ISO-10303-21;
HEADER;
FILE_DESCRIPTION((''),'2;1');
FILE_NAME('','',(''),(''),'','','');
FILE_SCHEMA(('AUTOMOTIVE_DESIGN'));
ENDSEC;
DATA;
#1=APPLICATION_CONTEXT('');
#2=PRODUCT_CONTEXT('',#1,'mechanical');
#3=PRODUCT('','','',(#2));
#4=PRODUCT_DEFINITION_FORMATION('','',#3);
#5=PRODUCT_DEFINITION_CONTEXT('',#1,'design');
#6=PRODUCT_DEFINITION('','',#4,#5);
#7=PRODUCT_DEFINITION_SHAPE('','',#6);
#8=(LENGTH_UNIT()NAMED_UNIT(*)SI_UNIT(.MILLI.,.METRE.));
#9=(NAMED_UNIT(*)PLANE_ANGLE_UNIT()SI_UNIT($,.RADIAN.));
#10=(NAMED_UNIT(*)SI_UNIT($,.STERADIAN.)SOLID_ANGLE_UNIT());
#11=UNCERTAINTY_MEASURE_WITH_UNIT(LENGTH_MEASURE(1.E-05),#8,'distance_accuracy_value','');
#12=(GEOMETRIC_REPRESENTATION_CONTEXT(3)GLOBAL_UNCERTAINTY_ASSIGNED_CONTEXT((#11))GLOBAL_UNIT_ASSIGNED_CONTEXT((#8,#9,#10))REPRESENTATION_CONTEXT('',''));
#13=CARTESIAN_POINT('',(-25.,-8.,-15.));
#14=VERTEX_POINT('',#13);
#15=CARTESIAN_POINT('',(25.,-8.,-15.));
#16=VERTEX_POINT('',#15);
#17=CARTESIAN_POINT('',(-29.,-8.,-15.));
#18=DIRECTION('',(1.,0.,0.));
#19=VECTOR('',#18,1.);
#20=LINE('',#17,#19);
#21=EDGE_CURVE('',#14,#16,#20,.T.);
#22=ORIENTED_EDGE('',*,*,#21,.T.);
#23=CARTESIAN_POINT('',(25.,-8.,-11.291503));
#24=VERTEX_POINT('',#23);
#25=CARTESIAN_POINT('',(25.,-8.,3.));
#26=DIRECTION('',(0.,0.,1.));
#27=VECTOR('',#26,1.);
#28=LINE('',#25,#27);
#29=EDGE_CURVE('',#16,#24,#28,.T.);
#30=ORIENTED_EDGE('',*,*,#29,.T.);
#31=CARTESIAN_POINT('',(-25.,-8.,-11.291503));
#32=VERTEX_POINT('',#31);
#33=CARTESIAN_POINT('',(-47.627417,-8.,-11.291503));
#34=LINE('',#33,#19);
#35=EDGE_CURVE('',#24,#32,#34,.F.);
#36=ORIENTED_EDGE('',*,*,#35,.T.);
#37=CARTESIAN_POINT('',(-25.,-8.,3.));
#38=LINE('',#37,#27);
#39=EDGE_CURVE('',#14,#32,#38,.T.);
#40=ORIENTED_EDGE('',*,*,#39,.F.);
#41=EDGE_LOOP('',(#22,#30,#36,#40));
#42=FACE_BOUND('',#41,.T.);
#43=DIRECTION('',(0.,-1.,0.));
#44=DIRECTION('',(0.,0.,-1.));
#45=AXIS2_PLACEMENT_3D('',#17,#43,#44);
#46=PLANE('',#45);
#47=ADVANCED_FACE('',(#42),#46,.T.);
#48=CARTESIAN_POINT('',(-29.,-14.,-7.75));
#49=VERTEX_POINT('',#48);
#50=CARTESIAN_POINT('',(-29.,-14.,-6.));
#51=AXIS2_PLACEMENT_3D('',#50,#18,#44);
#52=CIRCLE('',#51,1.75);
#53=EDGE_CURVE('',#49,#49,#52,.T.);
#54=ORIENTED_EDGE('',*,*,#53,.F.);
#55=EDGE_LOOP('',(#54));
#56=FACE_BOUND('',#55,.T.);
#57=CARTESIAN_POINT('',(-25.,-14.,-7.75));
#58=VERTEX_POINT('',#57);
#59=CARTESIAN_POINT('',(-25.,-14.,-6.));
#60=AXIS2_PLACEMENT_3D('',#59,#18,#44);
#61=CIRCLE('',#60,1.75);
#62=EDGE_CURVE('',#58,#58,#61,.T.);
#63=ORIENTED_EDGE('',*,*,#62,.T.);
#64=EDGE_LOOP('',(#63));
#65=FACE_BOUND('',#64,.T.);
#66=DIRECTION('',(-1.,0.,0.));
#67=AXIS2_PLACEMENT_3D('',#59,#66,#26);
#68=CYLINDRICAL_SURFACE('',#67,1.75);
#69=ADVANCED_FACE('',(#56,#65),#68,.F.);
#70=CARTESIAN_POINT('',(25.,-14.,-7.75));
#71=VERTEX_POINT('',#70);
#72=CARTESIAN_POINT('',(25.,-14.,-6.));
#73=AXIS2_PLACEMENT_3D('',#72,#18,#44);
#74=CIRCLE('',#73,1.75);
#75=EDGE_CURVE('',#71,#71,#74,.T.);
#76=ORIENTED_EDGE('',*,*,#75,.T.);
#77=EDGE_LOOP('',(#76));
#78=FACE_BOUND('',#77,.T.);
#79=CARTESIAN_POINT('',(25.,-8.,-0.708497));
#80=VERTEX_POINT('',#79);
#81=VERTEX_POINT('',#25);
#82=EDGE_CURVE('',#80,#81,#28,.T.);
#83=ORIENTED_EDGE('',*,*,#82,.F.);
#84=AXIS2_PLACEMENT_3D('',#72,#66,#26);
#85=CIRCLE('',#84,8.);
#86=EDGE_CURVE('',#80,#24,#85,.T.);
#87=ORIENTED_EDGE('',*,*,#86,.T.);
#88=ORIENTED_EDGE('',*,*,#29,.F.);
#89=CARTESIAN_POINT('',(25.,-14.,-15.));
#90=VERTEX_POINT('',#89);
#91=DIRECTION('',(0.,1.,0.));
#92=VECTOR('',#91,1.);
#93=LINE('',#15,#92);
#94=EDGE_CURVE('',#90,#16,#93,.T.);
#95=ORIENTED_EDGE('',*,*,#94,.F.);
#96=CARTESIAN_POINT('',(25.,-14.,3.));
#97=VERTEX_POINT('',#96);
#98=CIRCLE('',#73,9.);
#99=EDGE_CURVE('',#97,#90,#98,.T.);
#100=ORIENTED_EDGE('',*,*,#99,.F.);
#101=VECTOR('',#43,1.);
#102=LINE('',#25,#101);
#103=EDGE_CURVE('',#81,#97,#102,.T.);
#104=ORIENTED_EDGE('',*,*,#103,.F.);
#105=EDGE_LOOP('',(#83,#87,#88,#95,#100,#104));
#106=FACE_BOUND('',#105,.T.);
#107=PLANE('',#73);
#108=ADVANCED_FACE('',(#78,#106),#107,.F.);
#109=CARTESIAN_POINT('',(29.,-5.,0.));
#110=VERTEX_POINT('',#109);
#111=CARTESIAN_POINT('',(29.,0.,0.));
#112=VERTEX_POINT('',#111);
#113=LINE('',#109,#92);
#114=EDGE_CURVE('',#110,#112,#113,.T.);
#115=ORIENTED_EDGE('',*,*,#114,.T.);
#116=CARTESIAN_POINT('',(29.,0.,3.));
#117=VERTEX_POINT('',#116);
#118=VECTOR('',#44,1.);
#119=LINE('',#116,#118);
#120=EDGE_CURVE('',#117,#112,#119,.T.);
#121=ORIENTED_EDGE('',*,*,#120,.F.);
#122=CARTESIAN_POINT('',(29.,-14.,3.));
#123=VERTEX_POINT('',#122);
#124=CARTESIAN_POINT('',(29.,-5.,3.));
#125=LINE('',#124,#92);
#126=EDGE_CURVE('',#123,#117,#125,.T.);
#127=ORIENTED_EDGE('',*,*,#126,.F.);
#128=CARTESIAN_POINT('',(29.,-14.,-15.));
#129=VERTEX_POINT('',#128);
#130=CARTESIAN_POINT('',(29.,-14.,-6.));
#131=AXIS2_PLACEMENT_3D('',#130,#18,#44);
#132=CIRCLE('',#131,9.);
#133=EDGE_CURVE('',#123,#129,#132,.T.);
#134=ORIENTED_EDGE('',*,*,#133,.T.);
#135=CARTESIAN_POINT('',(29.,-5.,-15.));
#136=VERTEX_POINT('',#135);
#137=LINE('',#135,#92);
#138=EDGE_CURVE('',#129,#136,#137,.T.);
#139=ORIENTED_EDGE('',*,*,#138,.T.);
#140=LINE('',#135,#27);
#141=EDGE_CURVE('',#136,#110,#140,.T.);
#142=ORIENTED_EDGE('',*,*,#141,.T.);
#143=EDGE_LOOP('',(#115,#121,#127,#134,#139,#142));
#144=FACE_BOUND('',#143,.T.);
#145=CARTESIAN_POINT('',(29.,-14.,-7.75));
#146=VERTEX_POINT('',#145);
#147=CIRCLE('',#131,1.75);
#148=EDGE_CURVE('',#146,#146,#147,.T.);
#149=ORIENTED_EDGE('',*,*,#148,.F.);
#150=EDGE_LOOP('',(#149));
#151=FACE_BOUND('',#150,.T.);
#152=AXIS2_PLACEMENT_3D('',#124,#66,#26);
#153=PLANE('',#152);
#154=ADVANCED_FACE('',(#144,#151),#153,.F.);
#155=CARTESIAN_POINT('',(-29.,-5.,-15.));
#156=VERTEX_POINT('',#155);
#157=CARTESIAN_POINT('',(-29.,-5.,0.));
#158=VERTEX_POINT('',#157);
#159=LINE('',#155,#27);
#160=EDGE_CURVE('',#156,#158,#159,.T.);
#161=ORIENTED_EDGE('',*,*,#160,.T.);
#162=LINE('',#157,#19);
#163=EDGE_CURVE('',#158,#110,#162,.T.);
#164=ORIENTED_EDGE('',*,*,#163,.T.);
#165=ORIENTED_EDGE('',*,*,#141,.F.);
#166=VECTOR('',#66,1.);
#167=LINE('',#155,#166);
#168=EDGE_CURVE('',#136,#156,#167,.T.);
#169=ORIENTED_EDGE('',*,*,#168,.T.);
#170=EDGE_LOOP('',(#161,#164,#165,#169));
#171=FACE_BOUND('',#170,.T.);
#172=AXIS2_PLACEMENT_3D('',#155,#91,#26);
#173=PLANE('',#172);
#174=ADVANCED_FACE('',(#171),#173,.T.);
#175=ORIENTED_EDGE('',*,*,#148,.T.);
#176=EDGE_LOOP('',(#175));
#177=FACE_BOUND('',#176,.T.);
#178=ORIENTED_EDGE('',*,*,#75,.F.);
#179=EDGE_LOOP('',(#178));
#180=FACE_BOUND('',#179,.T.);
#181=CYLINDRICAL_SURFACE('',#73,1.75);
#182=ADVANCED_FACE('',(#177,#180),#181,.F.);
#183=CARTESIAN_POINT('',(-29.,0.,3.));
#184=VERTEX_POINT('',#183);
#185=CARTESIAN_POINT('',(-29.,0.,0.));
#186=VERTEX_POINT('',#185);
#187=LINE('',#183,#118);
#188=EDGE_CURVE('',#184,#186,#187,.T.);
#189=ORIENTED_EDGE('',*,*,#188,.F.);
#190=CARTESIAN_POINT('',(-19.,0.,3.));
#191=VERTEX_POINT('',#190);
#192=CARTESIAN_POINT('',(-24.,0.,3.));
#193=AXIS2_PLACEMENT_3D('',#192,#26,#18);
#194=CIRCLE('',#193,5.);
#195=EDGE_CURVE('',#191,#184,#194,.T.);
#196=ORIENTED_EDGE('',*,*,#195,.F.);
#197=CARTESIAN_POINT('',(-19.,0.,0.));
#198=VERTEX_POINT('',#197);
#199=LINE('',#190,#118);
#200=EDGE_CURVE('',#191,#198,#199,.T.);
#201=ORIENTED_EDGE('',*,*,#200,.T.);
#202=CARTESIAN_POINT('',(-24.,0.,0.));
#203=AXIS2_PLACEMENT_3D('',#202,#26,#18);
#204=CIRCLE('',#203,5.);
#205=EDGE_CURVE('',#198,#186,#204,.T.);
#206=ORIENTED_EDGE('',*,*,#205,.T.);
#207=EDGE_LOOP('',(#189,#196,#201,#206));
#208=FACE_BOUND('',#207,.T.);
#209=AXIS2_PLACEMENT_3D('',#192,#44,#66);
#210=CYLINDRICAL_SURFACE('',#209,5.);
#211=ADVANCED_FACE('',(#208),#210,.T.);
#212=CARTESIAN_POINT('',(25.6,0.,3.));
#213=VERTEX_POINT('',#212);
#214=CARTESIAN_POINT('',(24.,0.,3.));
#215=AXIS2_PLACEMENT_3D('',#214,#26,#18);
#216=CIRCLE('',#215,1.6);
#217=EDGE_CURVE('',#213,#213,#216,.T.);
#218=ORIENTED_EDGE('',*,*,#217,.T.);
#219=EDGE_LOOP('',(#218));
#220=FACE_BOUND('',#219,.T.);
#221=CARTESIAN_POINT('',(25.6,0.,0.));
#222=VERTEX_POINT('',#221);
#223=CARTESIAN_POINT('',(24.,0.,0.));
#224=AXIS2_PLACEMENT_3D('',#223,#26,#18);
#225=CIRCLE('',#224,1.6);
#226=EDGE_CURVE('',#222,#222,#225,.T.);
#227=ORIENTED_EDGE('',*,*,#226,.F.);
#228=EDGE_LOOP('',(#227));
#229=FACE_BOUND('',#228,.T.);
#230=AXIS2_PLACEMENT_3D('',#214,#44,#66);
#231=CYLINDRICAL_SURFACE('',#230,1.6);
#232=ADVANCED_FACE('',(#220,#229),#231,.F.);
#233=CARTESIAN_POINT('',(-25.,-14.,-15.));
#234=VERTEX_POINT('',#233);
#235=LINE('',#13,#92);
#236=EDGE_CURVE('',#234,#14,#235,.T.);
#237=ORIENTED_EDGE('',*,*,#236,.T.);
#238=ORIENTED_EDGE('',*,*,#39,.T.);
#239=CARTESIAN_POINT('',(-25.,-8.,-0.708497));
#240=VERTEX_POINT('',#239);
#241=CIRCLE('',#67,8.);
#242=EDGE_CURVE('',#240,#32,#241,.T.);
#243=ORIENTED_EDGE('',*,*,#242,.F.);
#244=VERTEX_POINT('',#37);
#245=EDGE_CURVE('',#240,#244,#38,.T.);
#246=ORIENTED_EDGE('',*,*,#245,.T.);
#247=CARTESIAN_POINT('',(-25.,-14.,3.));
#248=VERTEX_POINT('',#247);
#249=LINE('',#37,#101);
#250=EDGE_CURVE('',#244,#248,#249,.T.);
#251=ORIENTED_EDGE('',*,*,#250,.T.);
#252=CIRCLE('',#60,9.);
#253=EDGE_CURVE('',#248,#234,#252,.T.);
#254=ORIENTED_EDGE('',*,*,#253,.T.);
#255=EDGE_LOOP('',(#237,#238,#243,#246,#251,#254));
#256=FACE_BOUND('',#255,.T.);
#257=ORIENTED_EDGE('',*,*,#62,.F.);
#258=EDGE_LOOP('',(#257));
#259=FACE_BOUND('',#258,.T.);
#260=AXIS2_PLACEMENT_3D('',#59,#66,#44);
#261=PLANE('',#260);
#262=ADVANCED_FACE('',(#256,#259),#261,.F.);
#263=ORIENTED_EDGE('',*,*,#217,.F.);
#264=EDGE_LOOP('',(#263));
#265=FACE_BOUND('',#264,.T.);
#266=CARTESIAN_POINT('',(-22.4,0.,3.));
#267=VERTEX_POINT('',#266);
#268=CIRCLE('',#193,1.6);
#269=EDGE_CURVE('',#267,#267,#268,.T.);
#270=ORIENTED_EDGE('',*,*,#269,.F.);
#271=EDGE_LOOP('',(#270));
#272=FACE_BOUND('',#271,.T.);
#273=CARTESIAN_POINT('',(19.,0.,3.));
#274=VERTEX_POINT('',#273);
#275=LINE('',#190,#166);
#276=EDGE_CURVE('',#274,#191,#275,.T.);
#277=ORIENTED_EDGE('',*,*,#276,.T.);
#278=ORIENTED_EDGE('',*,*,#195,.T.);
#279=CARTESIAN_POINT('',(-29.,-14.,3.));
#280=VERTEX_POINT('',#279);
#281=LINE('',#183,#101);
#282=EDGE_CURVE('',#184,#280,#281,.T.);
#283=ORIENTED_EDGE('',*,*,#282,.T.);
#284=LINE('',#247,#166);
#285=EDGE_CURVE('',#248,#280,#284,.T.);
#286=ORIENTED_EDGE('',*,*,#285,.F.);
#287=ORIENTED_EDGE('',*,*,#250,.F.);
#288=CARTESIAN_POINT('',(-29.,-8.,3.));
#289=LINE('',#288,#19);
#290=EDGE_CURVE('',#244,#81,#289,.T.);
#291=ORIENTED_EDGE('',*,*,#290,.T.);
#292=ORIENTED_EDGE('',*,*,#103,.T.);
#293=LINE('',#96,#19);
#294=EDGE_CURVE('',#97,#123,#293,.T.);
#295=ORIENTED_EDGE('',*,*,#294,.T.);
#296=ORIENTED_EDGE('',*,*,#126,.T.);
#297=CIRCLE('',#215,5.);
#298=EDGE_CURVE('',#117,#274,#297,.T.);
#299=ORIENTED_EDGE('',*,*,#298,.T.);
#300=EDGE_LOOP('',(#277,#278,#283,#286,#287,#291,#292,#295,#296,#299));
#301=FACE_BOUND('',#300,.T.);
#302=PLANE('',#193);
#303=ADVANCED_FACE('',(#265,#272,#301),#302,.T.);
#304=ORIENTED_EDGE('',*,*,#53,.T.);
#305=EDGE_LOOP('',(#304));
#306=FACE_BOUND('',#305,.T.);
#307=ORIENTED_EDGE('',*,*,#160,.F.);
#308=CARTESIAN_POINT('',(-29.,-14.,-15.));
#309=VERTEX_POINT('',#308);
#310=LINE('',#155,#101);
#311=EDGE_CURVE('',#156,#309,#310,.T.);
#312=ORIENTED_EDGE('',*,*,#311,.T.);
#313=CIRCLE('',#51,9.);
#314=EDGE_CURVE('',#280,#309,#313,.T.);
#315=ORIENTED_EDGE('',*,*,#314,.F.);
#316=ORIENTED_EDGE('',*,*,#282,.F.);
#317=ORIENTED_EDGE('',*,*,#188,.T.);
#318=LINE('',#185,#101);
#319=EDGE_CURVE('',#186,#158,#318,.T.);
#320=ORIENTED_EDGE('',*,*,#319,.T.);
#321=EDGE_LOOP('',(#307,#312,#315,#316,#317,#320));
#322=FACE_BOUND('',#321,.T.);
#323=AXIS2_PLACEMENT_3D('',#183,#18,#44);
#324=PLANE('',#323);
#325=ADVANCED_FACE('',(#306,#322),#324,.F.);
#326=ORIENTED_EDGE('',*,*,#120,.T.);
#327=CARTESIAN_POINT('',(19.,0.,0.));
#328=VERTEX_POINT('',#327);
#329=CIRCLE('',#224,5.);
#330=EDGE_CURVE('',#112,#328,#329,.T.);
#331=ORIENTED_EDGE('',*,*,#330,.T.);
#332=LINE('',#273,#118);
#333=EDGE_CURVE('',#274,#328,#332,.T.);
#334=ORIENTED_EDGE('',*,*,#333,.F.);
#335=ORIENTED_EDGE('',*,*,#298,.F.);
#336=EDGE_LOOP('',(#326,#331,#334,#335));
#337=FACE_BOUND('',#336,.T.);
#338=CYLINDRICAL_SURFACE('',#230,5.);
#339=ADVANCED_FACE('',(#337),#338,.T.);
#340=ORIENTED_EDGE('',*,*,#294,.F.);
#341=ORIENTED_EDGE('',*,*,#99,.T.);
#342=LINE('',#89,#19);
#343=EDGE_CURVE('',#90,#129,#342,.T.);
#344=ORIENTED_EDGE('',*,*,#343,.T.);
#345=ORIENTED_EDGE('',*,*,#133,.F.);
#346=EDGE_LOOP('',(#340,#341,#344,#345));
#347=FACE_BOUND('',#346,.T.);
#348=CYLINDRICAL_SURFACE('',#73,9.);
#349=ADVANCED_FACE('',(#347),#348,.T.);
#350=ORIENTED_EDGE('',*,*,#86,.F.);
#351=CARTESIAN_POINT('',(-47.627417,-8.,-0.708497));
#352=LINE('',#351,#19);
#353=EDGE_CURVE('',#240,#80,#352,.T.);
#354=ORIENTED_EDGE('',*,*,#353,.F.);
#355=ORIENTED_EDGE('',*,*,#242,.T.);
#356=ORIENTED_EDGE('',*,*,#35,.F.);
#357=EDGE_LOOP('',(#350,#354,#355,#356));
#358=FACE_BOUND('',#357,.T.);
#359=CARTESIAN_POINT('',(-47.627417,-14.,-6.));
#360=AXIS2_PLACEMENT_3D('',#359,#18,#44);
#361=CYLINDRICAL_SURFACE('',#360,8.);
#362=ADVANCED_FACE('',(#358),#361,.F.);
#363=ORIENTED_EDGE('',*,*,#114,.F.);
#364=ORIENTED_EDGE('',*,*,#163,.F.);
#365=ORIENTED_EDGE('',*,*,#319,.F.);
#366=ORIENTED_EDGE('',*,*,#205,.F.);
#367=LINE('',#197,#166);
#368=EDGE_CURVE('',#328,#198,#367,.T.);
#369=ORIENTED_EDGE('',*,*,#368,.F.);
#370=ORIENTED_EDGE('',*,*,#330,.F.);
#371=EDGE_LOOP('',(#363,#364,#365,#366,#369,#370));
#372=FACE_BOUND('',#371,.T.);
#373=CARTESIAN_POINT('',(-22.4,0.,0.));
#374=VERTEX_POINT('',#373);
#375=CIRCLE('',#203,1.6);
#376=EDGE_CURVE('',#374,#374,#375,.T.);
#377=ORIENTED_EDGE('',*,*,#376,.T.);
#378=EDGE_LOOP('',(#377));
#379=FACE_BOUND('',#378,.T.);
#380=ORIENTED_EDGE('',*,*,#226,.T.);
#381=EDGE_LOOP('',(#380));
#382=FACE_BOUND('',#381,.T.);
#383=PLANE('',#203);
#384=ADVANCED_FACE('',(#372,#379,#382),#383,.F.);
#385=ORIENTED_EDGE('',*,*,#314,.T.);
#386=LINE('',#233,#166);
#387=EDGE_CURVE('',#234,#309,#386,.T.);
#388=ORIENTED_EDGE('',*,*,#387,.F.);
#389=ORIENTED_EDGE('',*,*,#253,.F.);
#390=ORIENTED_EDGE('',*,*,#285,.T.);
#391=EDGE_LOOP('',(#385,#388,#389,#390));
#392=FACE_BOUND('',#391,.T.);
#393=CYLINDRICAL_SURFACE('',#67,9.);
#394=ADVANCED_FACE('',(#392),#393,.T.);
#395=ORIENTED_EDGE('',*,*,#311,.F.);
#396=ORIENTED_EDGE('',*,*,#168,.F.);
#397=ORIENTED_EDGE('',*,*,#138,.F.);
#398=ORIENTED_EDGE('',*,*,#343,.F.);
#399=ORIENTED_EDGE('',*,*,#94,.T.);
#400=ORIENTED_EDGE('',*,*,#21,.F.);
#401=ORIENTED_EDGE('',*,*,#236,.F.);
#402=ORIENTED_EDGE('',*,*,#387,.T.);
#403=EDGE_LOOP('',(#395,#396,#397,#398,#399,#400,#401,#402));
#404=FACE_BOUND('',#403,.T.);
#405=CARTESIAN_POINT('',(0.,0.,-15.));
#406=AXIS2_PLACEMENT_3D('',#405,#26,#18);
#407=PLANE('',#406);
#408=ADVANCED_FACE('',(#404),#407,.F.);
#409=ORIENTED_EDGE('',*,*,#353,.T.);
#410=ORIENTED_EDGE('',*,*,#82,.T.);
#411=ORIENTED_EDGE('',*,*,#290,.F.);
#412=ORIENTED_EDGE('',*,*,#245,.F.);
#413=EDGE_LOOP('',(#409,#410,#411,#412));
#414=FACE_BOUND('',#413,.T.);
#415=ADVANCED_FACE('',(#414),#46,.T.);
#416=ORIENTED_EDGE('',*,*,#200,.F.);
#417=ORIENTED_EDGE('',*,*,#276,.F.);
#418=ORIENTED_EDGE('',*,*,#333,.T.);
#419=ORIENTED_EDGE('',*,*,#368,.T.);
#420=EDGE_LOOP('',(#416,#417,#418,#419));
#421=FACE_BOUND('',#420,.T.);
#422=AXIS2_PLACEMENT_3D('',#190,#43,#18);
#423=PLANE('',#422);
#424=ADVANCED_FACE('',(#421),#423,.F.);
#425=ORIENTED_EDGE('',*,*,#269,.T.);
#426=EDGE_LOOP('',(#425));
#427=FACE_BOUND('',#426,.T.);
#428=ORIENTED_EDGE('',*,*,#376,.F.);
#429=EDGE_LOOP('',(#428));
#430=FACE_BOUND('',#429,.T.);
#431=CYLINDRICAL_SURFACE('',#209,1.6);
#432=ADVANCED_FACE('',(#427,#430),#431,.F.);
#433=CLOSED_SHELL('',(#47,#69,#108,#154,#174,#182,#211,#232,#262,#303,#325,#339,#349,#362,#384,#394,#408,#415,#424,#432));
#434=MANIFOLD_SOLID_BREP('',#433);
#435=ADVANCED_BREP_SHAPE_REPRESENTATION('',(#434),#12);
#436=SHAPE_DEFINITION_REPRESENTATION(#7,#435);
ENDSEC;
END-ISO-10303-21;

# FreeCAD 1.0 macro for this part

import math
import FreeCAD as App
import Part
import Sketcher
from FreeCAD import Vector
Q = App.Units.Quantity


def add_polygon(sketch, points):
    """Adds a closed chain of lines whose ends are joined by coincident constraints."""
    first, n = sketch.GeometryCount, len(points)
    for a, b in zip(points, points[1:] + points[:1]):
        sketch.addGeometry(Part.LineSegment(App.Vector(*a, 0), App.Vector(*b, 0)), False)
    for i in range(n):
        sketch.addConstraint(Sketcher.Constraint("Coincident", first + i, 2, first + (i + 1) % n, 1))

doc = App.newDocument("Part")
params = doc.addObject("Spreadsheet::Sheet", "Params")
for row, (alias, value) in enumerate([
    ("sketch1_radius", "5 mm"),
    ("sketch1_diameter", "3.2 mm"),
    ("sketch1_width", "58 mm"),
    ("sketch1_height", "5 mm"),
    ("pad1_length", "3 mm"),
    ("sketch2_width", "58 mm"),
    ("sketch2_height", "3 mm"),
    ("pad2_length", "18 mm"),
    ("sketch3_radius", "9 mm"),
    ("sketch3_diameter", "3.5 mm"),
    ("sketch3_width", "6 mm"),
    ("pad3_length", "4 mm"),
    ("sketch4_diameter", "16 mm"),
    ("pocket1_length", "50 mm"),
], start=1):
    params.set(f"A{row}", alias)
    params.set(f"B{row}", "=" + value)
    params.setAlias(f"B{row}", alias)

body = doc.addObject("PartDesign::Body", "Body")

sketch1 = body.newObject("Sketcher::SketchObject", "Sketch")
sketch1.AttachmentSupport = (doc.getObject("XY_Plane"), [""])
sketch1.MapMode = "FlatFace"
sketch1.addGeometry([
    Part.LineSegment(Vector(-29, 0, 0), Vector(-29, -5, 0)),
    Part.LineSegment(Vector(-29, -5, 0), Vector(29, -5, 0)),
    Part.LineSegment(Vector(29, -5, 0), Vector(29, 0, 0)),
    Part.ArcOfCircle(Part.Circle(Vector(24, 0, 0), Vector(0, 0, 1), 5), math.radians(0), math.radians(180)),
    Part.LineSegment(Vector(19, 0, 0), Vector(-19, 0, 0)),
    Part.ArcOfCircle(Part.Circle(Vector(-24, 0, 0), Vector(0, 0, 1), 5), math.radians(0), math.radians(180)),
    Part.Circle(Vector(-24, 0, 0), Vector(0, 0, 1), 1.6),
    Part.Circle(Vector(24, 0, 0), Vector(0, 0, 1), 1.6),
], False)
sketch1.addConstraint([
    Sketcher.Constraint("Coincident", 0, 2, 1, 1),
    Sketcher.Constraint("Coincident", 1, 2, 2, 1),
    Sketcher.Constraint("Tangent", 2, 2, 3, 1),
    Sketcher.Constraint("Coincident", 3, 2, 4, 1),
    Sketcher.Constraint("Coincident", 4, 2, 5, 1),
    Sketcher.Constraint("Tangent", 5, 2, 0, 1),
    Sketcher.Constraint("Vertical", 0),
    Sketcher.Constraint("Horizontal", 1),
    Sketcher.Constraint("Vertical", 2),
    Sketcher.Constraint("Horizontal", 4),
    Sketcher.Constraint("Coincident", 6, 3, 5, 3),
    Sketcher.Constraint("Coincident", 7, 3, 3, 3),
    Sketcher.Constraint("Equal", 3, 5),
    Sketcher.Constraint("Equal", 6, 7),
    Sketcher.Constraint("Symmetric", 3, 3, 5, 3, -1, 1),
    Sketcher.Constraint("PointOnObject", 3, 3, -1),
    Sketcher.Constraint("PointOnObject", 3, 2, -1),
    Sketcher.Constraint("Radius", 3, Q("5 mm")),
    Sketcher.Constraint("Diameter", 6, Q("3.2 mm")),
    Sketcher.Constraint("DistanceX", 1, 1, 1, 2, Q("58 mm")),
    Sketcher.Constraint("DistanceY", 0, 2, 0, 1, Q("5 mm")),
])
sketch1.setExpression("Constraints[17]", "Params.sketch1_radius")
sketch1.setExpression("Constraints[18]", "Params.sketch1_diameter")
sketch1.setExpression("Constraints[19]", "Params.sketch1_width")
sketch1.setExpression("Constraints[20]", "Params.sketch1_height")
pad1 = body.newObject("PartDesign::Pad", "Pad")
pad1.Profile = sketch1
pad1.setExpression("Length", "Params.pad1_length")

sketch2 = body.newObject("Sketcher::SketchObject", "Sketch001")
sketch2.AttachmentSupport = (doc.getObject("XY_Plane"), [""])
sketch2.MapMode = "FlatFace"
sketch2.AttachmentOffset = App.Placement(Vector(0, 0, 3), App.Rotation())
add_polygon(sketch2, [(-29, -5), (-29, -8), (29, -8), (29, -5)])
sketch2.addConstraint([
    Sketcher.Constraint("Vertical", 0),
    Sketcher.Constraint("Horizontal", 1),
    Sketcher.Constraint("Vertical", 2),
    Sketcher.Constraint("Horizontal", 3),
    Sketcher.Constraint("DistanceX", 1, 1, 1, 2, Q("58 mm")),
    Sketcher.Constraint("DistanceY", 0, 2, 0, 1, Q("3 mm")),
    Sketcher.Constraint("DistanceX", 0, 2, -1, 1, Q("29 mm")),
    Sketcher.Constraint("DistanceY", 0, 2, -1, 1, Q("8 mm")),
])
sketch2.setExpression("Constraints[8]", "Params.sketch2_width")
sketch2.setExpression("Constraints[9]", "Params.sketch2_height")
pad2 = body.newObject("PartDesign::Pad", "Pad001")
pad2.Profile = sketch2
pad2.setExpression("Length", "Params.pad2_length")
pad2.Reversed = True

sketch3 = body.newObject("Sketcher::SketchObject", "Sketch002")
sketch3.AttachmentSupport = (doc.getObject("YZ_Plane"), [""])
sketch3.MapMode = "FlatFace"
sketch3.AttachmentOffset = App.Placement(Vector(0, 0, 29), App.Rotation())
sketch3.addGeometry([
    Part.LineSegment(Vector(-8, 3, 0), Vector(-14, 3, 0)),
    Part.ArcOfCircle(Part.Circle(Vector(-14, -6, 0), Vector(0, 0, 1), 9), math.radians(90), math.radians(270)),
    Part.LineSegment(Vector(-14, -15, 0), Vector(-8, -15, 0)),
    Part.LineSegment(Vector(-8, -15, 0), Vector(-8, 3, 0)),
    Part.Circle(Vector(-14, -6, 0), Vector(0, 0, 1), 1.8),
], False)
sketch3.addConstraint([
    Sketcher.Constraint("Tangent", 0, 2, 1, 1),
    Sketcher.Constraint("Tangent", 1, 2, 2, 1),
    Sketcher.Constraint("Coincident", 2, 2, 3, 1),
    Sketcher.Constraint("Coincident", 3, 2, 0, 1),
    Sketcher.Constraint("Horizontal", 0),
    Sketcher.Constraint("Horizontal", 2),
    Sketcher.Constraint("Vertical", 3),
    Sketcher.Constraint("Coincident", 4, 3, 1, 3),
    Sketcher.Constraint("Radius", 1, Q("9 mm")),
    Sketcher.Constraint("Diameter", 4, Q("3.5 mm")),
    Sketcher.Constraint("DistanceX", 0, 2, 0, 1, Q("6 mm")),
    Sketcher.Constraint("DistanceX", 1, 3, -1, 1, Q("14 mm")),
    Sketcher.Constraint("DistanceY", 1, 3, -1, 1, Q("6 mm")),
])
sketch3.setExpression("Constraints[8]", "Params.sketch3_radius")
sketch3.setExpression("Constraints[9]", "Params.sketch3_diameter")
sketch3.setExpression("Constraints[10]", "Params.sketch3_width")
pad3 = body.newObject("PartDesign::Pad", "Pad002")
pad3.Profile = sketch3
pad3.setExpression("Length", "Params.pad3_length")
pad3.Reversed = True
doc.recompute()

mirrored = body.newObject("PartDesign::Mirrored", "Mirrored")
mirrored.Originals = [pad3]
mirrored.MirrorPlane = (doc.getObject("YZ_Plane"), [""])
body.Tip = mirrored

sketch4 = body.newObject("Sketcher::SketchObject", "Sketch003")
sketch4.AttachmentSupport = (doc.getObject("YZ_Plane"), [""])
sketch4.MapMode = "FlatFace"
sketch4.AttachmentOffset = App.Placement(Vector(0, 0, 25), App.Rotation())
sketch4.addGeometry(Part.Circle(Vector(-14, -6, 0), Vector(0, 0, 1), 8), False)
sketch4.addConstraint([
    Sketcher.Constraint("Diameter", 0, Q("16 mm")),
    Sketcher.Constraint("DistanceX", 0, 3, -1, 1, Q("14 mm")),
    Sketcher.Constraint("DistanceY", 0, 3, -1, 1, Q("6 mm")),
])
sketch4.setExpression("Constraints[0]", "Params.sketch4_diameter")
pocket1 = body.newObject("PartDesign::Pocket", "Pocket")
pocket1.Profile = sketch4
pocket1.setExpression("Length", "Params.pocket1_length")

doc.recompute()
